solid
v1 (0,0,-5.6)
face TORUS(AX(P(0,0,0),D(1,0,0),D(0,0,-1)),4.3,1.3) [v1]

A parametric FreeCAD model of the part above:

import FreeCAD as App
import Part
import Sketcher

V = App.Vector
Q = App.Units.Quantity

doc = App.newDocument("Part")
body = doc.addObject("PartDesign::Body", "Body")

# Sketch on XY plane
sketch1 = body.newObject("Sketcher::SketchObject", "Sketch")
sketch1.AttachmentSupport = (doc.getObject("XY_Plane"), [""])
sketch1.MapMode = "FlatFace"
sketch1.addGeometry(Part.Circle(V(0, 4.3, 0), V(0, 0, 1), 1.3), False)
sketch1.addConstraint([
    Sketcher.Constraint("PointOnObject", 0, 3, -2),
    Sketcher.Constraint("Diameter", 0, Q("2.6 mm")),
    Sketcher.Constraint("DistanceY", -1, 1, 0, 3, Q("4.3 mm")),
])
revolution = body.newObject("PartDesign::Revolution", "Revolution")
revolution.Profile = sketch1
revolution.ReferenceAxis = (sketch1, ["H_Axis"])
revolution.Angle = 360

doc.recompute()
